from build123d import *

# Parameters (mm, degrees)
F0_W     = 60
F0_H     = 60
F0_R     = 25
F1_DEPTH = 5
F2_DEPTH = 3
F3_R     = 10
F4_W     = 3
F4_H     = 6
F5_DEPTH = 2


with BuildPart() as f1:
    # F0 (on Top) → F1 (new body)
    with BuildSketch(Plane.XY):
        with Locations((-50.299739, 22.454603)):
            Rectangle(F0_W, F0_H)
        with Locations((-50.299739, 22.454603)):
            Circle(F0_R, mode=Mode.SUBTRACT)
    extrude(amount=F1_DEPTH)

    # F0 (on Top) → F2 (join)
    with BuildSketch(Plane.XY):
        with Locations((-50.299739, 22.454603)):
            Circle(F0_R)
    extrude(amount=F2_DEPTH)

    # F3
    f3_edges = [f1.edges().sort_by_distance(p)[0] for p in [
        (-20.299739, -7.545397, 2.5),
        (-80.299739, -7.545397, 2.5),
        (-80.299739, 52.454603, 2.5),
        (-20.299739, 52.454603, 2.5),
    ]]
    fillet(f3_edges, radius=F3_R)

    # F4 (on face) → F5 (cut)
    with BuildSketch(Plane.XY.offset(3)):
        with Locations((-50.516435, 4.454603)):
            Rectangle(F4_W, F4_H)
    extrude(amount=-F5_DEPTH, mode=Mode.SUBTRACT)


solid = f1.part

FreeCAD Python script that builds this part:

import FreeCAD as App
import Part
import Sketcher
Q = App.Units.Quantity


def edges_at(feature, points):
    """Names of the edges that pass closest to the given points."""
    edges = feature.Shape.Edges
    near = lambda p: min(range(len(edges)), key=lambda i: edges[i].distToShape(Part.Vertex(*p))[0])
    return sorted({f"Edge{near(p) + 1}" for p in points})

doc = App.newDocument("Part")
params = doc.addObject("Spreadsheet::Sheet", "Params")
for row, (alias, value) in enumerate([
    ("sketch1_diameter", "50 mm"),
    ("sketch1_width", "60 mm"),
    ("pad1_length", "5 mm"),
    ("sketch2_diameter", "50 mm"),
    ("pad2_length", "3 mm"),
    ("fillet_radius", "10 mm"),
    ("sketch3_width", "3 mm"),
    ("sketch3_height", "6 mm"),
    ("pocket1_length", "2 mm"),
], start=1):
    params.set(f"A{row}", alias)
    params.set(f"B{row}", "=" + value)
    params.setAlias(f"B{row}", alias)

body = doc.addObject("PartDesign::Body", "Body")

# Sketch on XY plane
sketch1 = doc.addObject("Sketcher::SketchObject", "Sketch")
body.addObject(sketch1)
sketch1.AttachmentSupport = (doc.XY_Plane, [""])
sketch1.MapMode = "FlatFace"
sketch1.addGeometry(Part.LineSegment(App.Vector(-80.299739, 52.454603, 0), App.Vector(-80.299739, -7.545397, 0)), False)
sketch1.addGeometry(Part.LineSegment(App.Vector(-80.299739, -7.545397, 0), App.Vector(-20.299739, -7.545397, 0)), False)
sketch1.addGeometry(Part.LineSegment(App.Vector(-20.299739, -7.545397, 0), App.Vector(-20.299739, 52.454603, 0)), False)
sketch1.addGeometry(Part.LineSegment(App.Vector(-20.299739, 52.454603, 0), App.Vector(-80.299739, 52.454603, 0)), False)
sketch1.addGeometry(Part.Circle(App.Vector(-50.299739, 22.454603, 0), App.Vector(0, 0, 1), 25), False)
sketch1.addConstraint(Sketcher.Constraint("Coincident", 0, 2, 1, 1))
sketch1.addConstraint(Sketcher.Constraint("Coincident", 1, 2, 2, 1))
sketch1.addConstraint(Sketcher.Constraint("Coincident", 2, 2, 3, 1))
sketch1.addConstraint(Sketcher.Constraint("Coincident", 3, 2, 0, 1))
sketch1.addConstraint(Sketcher.Constraint("Vertical", 0))
sketch1.addConstraint(Sketcher.Constraint("Horizontal", 1))
sketch1.addConstraint(Sketcher.Constraint("Vertical", 2))
sketch1.addConstraint(Sketcher.Constraint("Horizontal", 3))
sketch1.addConstraint(Sketcher.Constraint("Equal", 3, 0))
sketch1.addConstraint(Sketcher.Constraint("Diameter", 4, Q("50 mm")))
sketch1.addConstraint(Sketcher.Constraint("DistanceX", 1, 1, 1, 2, Q("60 mm")))
sketch1.addConstraint(Sketcher.Constraint("DistanceX", 0, 2, 4, 3, Q("30 mm")))
sketch1.addConstraint(Sketcher.Constraint("DistanceY", 0, 2, 4, 3, Q("30 mm")))
sketch1.addConstraint(Sketcher.Constraint("DistanceX", 4, 3, -1, 1, Q("50.299739 mm")))
sketch1.addConstraint(Sketcher.Constraint("DistanceY", -1, 1, 4, 3, Q("22.454603 mm")))
sketch1.setExpression("Constraints[9]", "Params.sketch1_diameter")
sketch1.setExpression("Constraints[10]", "Params.sketch1_width")
pad1 = doc.addObject("PartDesign::Pad", "Pad")
body.addObject(pad1)
pad1.Profile = sketch1
pad1.setExpression("Length", "Params.pad1_length")

# Sketch on XY plane
sketch2 = doc.addObject("Sketcher::SketchObject", "Sketch001")
body.addObject(sketch2)
sketch2.AttachmentSupport = (doc.XY_Plane, [""])
sketch2.MapMode = "FlatFace"
sketch2.addGeometry(Part.Circle(App.Vector(-50.299739, 22.454603, 0), App.Vector(0, 0, 1), 25), False)
sketch2.addConstraint(Sketcher.Constraint("Diameter", 0, Q("50 mm")))
sketch2.addConstraint(Sketcher.Constraint("DistanceX", 0, 3, -1, 1, Q("50.299739 mm")))
sketch2.addConstraint(Sketcher.Constraint("DistanceY", -1, 1, 0, 3, Q("22.454603 mm")))
sketch2.setExpression("Constraints[0]", "Params.sketch2_diameter")
pad2 = doc.addObject("PartDesign::Pad", "Pad001")
body.addObject(pad2)
pad2.Profile = sketch2
pad2.setExpression("Length", "Params.pad2_length")
doc.recompute()

fillet = doc.addObject("PartDesign::Fillet", "Fillet")
body.addObject(fillet)
fillet.Base = (pad2, edges_at(pad2, [
    (-20.3, -7.545, 2.5),
    (-80.3, -7.545, 2.5),
    (-80.3, 52.455, 2.5),
    (-20.3, 52.455, 2.5),
]))
fillet.setExpression("Radius", "Params.fillet_radius")

# Sketch on XY plane
sketch3 = doc.addObject("Sketcher::SketchObject", "Sketch002")
body.addObject(sketch3)
sketch3.AttachmentSupport = (doc.XY_Plane, [""])
sketch3.MapMode = "FlatFace"
sketch3.AttachmentOffset = App.Placement(App.Vector(0, 0, 3), App.Rotation())
sketch3.addGeometry(Part.LineSegment(App.Vector(-52.016435, 7.454603, 0), App.Vector(-52.016435, 1.454603, 0)), False)
sketch3.addGeometry(Part.LineSegment(App.Vector(-52.016435, 1.454603, 0), App.Vector(-49.016435, 1.454603, 0)), False)
sketch3.addGeometry(Part.LineSegment(App.Vector(-49.016435, 1.454603, 0), App.Vector(-49.016435, 7.454603, 0)), False)
sketch3.addGeometry(Part.LineSegment(App.Vector(-49.016435, 7.454603, 0), App.Vector(-52.016435, 7.454603, 0)), False)
sketch3.addConstraint(Sketcher.Constraint("Coincident", 0, 2, 1, 1))
sketch3.addConstraint(Sketcher.Constraint("Coincident", 1, 2, 2, 1))
sketch3.addConstraint(Sketcher.Constraint("Coincident", 2, 2, 3, 1))
sketch3.addConstraint(Sketcher.Constraint("Coincident", 3, 2, 0, 1))
sketch3.addConstraint(Sketcher.Constraint("Vertical", 0))
sketch3.addConstraint(Sketcher.Constraint("Horizontal", 1))
sketch3.addConstraint(Sketcher.Constraint("Vertical", 2))
sketch3.addConstraint(Sketcher.Constraint("Horizontal", 3))
sketch3.addConstraint(Sketcher.Constraint("DistanceX", 1, 1, 1, 2, Q("3 mm")))
sketch3.addConstraint(Sketcher.Constraint("DistanceY", 0, 2, 0, 1, Q("6 mm")))
sketch3.addConstraint(Sketcher.Constraint("DistanceX", 0, 2, -1, 1, Q("52.016435 mm")))
sketch3.addConstraint(Sketcher.Constraint("DistanceY", -1, 1, 0, 2, Q("1.454603 mm")))
sketch3.setExpression("Constraints[8]", "Params.sketch3_width")
sketch3.setExpression("Constraints[9]", "Params.sketch3_height")
pocket1 = doc.addObject("PartDesign::Pocket", "Pocket")
body.addObject(pocket1)
pocket1.Profile = sketch3
pocket1.setExpression("Length", "Params.pocket1_length")

doc.recompute()
